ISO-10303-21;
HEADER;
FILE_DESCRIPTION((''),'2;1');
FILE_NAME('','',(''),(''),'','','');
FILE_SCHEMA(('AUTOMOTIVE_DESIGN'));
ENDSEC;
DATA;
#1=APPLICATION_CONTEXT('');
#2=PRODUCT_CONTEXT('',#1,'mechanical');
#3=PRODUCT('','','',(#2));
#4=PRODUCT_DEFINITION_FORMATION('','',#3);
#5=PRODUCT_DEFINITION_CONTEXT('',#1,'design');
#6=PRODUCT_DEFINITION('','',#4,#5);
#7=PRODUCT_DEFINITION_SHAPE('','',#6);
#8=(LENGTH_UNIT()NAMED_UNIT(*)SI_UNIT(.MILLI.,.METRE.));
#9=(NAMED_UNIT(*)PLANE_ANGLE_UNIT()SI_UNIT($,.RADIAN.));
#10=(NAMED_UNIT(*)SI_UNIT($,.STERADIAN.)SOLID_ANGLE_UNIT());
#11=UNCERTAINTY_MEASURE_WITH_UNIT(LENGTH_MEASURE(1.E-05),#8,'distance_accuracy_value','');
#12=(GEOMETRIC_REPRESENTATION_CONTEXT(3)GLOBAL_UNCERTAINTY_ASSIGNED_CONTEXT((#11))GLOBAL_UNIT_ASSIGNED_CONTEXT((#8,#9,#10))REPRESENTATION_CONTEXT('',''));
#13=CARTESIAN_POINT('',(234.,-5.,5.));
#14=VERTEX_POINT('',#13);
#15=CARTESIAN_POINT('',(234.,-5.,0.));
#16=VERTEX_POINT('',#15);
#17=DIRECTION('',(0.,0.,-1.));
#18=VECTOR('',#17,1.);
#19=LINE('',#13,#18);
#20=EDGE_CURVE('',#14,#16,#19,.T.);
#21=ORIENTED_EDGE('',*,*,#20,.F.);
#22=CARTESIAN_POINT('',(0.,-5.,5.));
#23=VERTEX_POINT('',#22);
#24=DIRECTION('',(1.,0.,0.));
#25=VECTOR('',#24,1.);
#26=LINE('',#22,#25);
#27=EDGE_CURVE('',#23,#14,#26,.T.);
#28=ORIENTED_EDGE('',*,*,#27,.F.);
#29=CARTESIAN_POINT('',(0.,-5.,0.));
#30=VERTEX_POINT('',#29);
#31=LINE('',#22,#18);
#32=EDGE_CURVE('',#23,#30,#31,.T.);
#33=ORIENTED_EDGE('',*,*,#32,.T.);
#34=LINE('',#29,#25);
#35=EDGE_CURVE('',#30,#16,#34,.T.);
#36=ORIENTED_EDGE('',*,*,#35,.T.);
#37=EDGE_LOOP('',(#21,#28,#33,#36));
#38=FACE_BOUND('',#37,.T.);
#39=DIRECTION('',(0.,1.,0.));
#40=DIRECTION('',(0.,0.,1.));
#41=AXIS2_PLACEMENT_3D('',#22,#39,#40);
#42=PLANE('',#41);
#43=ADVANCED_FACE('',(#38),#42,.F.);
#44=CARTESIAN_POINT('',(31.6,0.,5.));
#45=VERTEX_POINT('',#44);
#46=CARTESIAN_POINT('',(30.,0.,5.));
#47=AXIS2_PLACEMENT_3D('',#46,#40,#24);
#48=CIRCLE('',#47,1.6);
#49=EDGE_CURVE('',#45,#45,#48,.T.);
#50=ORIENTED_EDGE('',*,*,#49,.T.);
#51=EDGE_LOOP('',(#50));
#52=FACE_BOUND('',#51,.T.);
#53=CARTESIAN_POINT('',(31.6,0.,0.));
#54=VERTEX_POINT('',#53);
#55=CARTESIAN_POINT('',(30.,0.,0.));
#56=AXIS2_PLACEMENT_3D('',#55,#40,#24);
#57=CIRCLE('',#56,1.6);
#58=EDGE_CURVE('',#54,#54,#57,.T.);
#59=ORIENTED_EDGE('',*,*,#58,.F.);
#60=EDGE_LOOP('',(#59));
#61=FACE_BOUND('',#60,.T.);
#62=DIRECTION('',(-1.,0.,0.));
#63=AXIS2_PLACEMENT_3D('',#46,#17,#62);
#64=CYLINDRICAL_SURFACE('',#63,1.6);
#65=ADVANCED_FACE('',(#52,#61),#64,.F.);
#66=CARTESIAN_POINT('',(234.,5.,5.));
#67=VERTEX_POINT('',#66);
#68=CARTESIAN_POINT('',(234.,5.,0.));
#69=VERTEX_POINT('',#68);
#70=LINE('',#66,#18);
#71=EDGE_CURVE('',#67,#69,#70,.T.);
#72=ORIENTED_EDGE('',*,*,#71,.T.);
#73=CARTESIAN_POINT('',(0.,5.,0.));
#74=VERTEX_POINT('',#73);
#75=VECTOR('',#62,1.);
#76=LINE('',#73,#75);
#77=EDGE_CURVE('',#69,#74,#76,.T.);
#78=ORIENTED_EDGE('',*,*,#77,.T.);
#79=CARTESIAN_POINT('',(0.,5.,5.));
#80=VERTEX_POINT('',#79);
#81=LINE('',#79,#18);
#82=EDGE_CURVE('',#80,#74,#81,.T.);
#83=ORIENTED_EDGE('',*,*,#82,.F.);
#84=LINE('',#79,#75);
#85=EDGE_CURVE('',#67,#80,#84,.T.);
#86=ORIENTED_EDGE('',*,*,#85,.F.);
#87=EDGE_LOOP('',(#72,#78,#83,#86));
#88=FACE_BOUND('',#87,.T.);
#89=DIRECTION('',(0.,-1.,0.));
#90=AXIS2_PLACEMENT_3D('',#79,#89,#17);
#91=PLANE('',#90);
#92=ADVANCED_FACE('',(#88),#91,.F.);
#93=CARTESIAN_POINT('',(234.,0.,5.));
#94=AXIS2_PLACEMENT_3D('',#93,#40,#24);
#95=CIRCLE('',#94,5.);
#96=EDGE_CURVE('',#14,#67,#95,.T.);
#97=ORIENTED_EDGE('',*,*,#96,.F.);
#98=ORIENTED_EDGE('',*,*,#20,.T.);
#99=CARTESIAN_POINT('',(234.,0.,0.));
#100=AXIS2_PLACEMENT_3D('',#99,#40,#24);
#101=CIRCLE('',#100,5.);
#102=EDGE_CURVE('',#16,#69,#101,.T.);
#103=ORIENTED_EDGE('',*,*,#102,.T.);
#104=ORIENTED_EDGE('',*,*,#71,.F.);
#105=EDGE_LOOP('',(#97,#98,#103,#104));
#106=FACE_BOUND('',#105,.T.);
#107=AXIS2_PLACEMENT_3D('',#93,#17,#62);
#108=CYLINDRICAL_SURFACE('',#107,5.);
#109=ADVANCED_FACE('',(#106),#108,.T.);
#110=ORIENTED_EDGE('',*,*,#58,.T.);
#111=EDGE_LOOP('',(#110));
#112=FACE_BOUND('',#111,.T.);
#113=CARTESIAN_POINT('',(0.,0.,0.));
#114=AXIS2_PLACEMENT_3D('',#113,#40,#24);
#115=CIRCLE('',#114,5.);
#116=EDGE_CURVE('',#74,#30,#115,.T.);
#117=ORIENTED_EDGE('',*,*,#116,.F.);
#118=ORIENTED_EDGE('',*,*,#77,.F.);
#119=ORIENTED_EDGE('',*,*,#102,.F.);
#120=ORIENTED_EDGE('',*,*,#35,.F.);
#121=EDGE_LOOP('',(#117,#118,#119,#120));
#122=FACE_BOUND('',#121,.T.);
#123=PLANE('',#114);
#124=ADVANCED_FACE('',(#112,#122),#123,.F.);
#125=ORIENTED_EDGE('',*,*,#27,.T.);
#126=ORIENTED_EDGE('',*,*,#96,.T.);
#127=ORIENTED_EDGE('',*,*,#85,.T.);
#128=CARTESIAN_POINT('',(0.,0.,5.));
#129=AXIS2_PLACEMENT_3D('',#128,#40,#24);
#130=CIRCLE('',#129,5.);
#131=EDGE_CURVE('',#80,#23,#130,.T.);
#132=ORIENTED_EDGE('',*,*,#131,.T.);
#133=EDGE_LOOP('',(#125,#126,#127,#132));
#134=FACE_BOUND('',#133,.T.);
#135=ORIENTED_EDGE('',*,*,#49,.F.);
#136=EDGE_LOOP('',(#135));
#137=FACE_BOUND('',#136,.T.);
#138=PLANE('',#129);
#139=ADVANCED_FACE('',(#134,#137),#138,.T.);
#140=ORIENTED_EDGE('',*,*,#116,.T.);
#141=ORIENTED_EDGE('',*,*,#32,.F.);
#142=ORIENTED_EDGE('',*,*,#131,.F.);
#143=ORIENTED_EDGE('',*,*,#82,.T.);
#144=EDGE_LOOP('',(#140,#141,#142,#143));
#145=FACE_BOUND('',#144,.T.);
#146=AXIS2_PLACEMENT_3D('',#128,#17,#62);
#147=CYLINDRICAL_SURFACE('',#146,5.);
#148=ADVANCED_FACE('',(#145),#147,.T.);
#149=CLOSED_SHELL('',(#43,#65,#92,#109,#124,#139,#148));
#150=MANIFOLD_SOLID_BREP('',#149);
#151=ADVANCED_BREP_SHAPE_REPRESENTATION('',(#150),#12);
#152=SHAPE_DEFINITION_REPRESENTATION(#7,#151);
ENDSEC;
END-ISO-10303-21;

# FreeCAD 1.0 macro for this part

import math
import FreeCAD as App
import Part
import Sketcher

V = App.Vector
Q = App.Units.Quantity

doc = App.newDocument("Part")
body = doc.addObject("PartDesign::Body", "Body")

# Sketch on XY plane
sketch1 = doc.addObject("Sketcher::SketchObject", "Sketch")
body.addObject(sketch1)
sketch1.AttachmentSupport = (doc.XY_Plane, [""])
sketch1.MapMode = "FlatFace"
sketch1.addGeometry([
    Part.LineSegment(V(234, 5, 0), V(0, 5, 0)),  # 0
    Part.ArcOfCircle(Part.Circle(V(0, 0, 0), V(0, 0, 1), 5), math.radians(90), math.radians(270)),  # 1
    Part.LineSegment(V(0, -5, 0), V(234, -5, 0)),  # 2
    Part.ArcOfCircle(Part.Circle(V(234, 0, 0), V(0, 0, 1), 5), math.radians(-90), math.radians(90)),  # 3
    Part.Circle(V(30, 0, 0), V(0, 0, 1), 1.6),  # 4
], False)
sketch1.addConstraint([
    Sketcher.Constraint("Tangent", 0, 2, 1, 1),
    Sketcher.Constraint("Tangent", 1, 2, 2, 1),
    Sketcher.Constraint("Tangent", 2, 2, 3, 1),
    Sketcher.Constraint("Tangent", 3, 2, 0, 1),
    Sketcher.Constraint("Horizontal", 0),
    Sketcher.Constraint("Horizontal", 2),
    Sketcher.Constraint("Coincident", 1, 3, -1, 1),
    Sketcher.Constraint("PointOnObject", 4, 3, -1),
    Sketcher.Constraint("Radius", 1, Q("5 mm")),
    Sketcher.Constraint("Diameter", 4, Q("3.2 mm")),
    Sketcher.Constraint("DistanceX", 0, 2, 0, 1, Q("234 mm")),
    Sketcher.Constraint("DistanceX", -1, 1, 4, 3, Q("30 mm")),
])
pad1 = doc.addObject("PartDesign::Pad", "Pad")
body.addObject(pad1)
pad1.Profile = sketch1
pad1.Length = 5

doc.recompute()
